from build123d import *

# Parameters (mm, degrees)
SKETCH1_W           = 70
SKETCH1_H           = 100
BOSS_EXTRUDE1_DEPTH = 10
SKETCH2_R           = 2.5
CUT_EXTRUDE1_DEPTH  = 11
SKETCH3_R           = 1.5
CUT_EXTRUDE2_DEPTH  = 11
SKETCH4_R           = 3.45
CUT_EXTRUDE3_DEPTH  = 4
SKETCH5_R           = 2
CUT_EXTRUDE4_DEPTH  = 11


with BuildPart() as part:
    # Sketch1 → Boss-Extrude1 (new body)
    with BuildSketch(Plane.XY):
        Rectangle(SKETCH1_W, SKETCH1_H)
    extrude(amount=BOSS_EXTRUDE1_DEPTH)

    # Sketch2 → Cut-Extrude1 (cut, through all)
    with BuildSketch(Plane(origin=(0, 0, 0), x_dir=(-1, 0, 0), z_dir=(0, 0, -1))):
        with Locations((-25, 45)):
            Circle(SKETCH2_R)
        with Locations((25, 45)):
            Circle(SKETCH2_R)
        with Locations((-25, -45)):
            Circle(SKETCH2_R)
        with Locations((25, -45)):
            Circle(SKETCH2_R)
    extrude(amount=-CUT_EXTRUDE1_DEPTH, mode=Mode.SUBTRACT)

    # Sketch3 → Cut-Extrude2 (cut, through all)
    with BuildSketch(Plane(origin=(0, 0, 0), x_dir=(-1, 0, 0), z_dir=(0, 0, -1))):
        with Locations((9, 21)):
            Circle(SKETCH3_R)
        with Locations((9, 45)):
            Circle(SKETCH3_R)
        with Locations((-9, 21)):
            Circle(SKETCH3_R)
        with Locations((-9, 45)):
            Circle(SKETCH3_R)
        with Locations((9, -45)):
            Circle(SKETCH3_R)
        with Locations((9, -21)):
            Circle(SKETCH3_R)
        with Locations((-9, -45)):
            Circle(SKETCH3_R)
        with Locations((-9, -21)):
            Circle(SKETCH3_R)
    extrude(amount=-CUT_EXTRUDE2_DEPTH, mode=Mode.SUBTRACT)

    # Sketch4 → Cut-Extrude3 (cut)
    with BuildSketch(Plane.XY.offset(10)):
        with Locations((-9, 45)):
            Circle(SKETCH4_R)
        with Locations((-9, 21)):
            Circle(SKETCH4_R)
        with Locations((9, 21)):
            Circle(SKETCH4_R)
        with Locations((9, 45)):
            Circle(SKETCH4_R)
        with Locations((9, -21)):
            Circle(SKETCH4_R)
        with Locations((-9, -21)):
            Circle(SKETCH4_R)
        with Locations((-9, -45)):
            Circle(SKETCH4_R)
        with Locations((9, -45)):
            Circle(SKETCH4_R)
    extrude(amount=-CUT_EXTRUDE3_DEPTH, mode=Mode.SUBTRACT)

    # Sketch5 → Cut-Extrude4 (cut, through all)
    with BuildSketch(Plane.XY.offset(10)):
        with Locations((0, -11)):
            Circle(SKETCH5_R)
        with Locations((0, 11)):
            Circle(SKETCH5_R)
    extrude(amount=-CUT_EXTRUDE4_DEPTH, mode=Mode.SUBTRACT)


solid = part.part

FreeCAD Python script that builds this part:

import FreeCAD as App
import Part
import Sketcher
Q = App.Units.Quantity

doc = App.newDocument("Part")
body = doc.addObject("PartDesign::Body", "Body")

# Sketch on XY plane
sketch1 = doc.addObject("Sketcher::SketchObject", "Sketch")
body.addObject(sketch1)
sketch1.AttachmentSupport = (doc.XY_Plane, [""])
sketch1.MapMode = "FlatFace"
sketch1.addGeometry(Part.LineSegment(App.Vector(-35, 50, 0), App.Vector(-35, -50, 0)), False)
sketch1.addGeometry(Part.LineSegment(App.Vector(-35, -50, 0), App.Vector(35, -50, 0)), False)
sketch1.addGeometry(Part.LineSegment(App.Vector(35, -50, 0), App.Vector(35, 50, 0)), False)
sketch1.addGeometry(Part.LineSegment(App.Vector(35, 50, 0), App.Vector(-35, 50, 0)), False)
sketch1.addConstraint(Sketcher.Constraint("Coincident", 0, 2, 1, 1))
sketch1.addConstraint(Sketcher.Constraint("Coincident", 1, 2, 2, 1))
sketch1.addConstraint(Sketcher.Constraint("Coincident", 2, 2, 3, 1))
sketch1.addConstraint(Sketcher.Constraint("Coincident", 3, 2, 0, 1))
sketch1.addConstraint(Sketcher.Constraint("Vertical", 0))
sketch1.addConstraint(Sketcher.Constraint("Horizontal", 1))
sketch1.addConstraint(Sketcher.Constraint("Vertical", 2))
sketch1.addConstraint(Sketcher.Constraint("Horizontal", 3))
sketch1.addConstraint(Sketcher.Constraint("Symmetric", 0, 2, 2, 2, -1, 1))
sketch1.addConstraint(Sketcher.Constraint("DistanceX", 1, 1, 1, 2, Q("70 mm")))
sketch1.addConstraint(Sketcher.Constraint("DistanceY", 0, 2, 0, 1, Q("100 mm")))
pad1 = doc.addObject("PartDesign::Pad", "Pad")
body.addObject(pad1)
pad1.Profile = sketch1
pad1.Length = 10

# Sketch on XY plane
sketch2 = doc.addObject("Sketcher::SketchObject", "Sketch001")
body.addObject(sketch2)
sketch2.AttachmentSupport = (doc.XY_Plane, [""])
sketch2.MapMode = "FlatFace"
sketch2.addGeometry(Part.Circle(App.Vector(25, 45, 0), App.Vector(0, 0, 1), 2.5), False)
sketch2.addGeometry(Part.Circle(App.Vector(-25, 45, 0), App.Vector(0, 0, 1), 2.5), False)
sketch2.addGeometry(Part.Circle(App.Vector(25, -45, 0), App.Vector(0, 0, 1), 2.5), False)
sketch2.addGeometry(Part.Circle(App.Vector(-25, -45, 0), App.Vector(0, 0, 1), 2.5), False)
sketch2.addConstraint(Sketcher.Constraint("Equal", 0, 1))
sketch2.addConstraint(Sketcher.Constraint("Equal", 1, 2))
sketch2.addConstraint(Sketcher.Constraint("Equal", 2, 3))
sketch2.addConstraint(Sketcher.Constraint("Symmetric", 1, 3, 2, 3, -1, 1))
sketch2.addConstraint(Sketcher.Constraint("Symmetric", 0, 3, 3, 3, -1, 1))
sketch2.addConstraint(Sketcher.Constraint("Symmetric", 0, 3, 1, 3, -2))
sketch2.addConstraint(Sketcher.Constraint("Diameter", 0, Q("5 mm")))
sketch2.addConstraint(Sketcher.Constraint("DistanceX", -1, 1, 0, 3, Q("25 mm")))
sketch2.addConstraint(Sketcher.Constraint("DistanceY", -1, 1, 0, 3, Q("45 mm")))
pocket1 = doc.addObject("PartDesign::Pocket", "Pocket")
body.addObject(pocket1)
pocket1.Profile = sketch2
pocket1.Type = "ThroughAll"
pocket1.Reversed = True

# Sketch on XY plane
sketch3 = doc.addObject("Sketcher::SketchObject", "Sketch002")
body.addObject(sketch3)
sketch3.AttachmentSupport = (doc.XY_Plane, [""])
sketch3.MapMode = "FlatFace"
sketch3.addGeometry(Part.Circle(App.Vector(-9, 21, 0), App.Vector(0, 0, 1), 1.5), False)
sketch3.addGeometry(Part.Circle(App.Vector(-9, 45, 0), App.Vector(0, 0, 1), 1.5), False)
sketch3.addGeometry(Part.Circle(App.Vector(9, 21, 0), App.Vector(0, 0, 1), 1.5), False)
sketch3.addGeometry(Part.Circle(App.Vector(9, 45, 0), App.Vector(0, 0, 1), 1.5), False)
sketch3.addGeometry(Part.Circle(App.Vector(-9, -45, 0), App.Vector(0, 0, 1), 1.5), False)
sketch3.addGeometry(Part.Circle(App.Vector(-9, -21, 0), App.Vector(0, 0, 1), 1.5), False)
sketch3.addGeometry(Part.Circle(App.Vector(9, -45, 0), App.Vector(0, 0, 1), 1.5), False)
sketch3.addGeometry(Part.Circle(App.Vector(9, -21, 0), App.Vector(0, 0, 1), 1.5), False)
sketch3.addConstraint(Sketcher.Constraint("Equal", 0, 1))
sketch3.addConstraint(Sketcher.Constraint("Equal", 1, 2))
sketch3.addConstraint(Sketcher.Constraint("Equal", 2, 3))
sketch3.addConstraint(Sketcher.Constraint("Equal", 3, 4))
sketch3.addConstraint(Sketcher.Constraint("Equal", 4, 5))
sketch3.addConstraint(Sketcher.Constraint("Equal", 5, 6))
sketch3.addConstraint(Sketcher.Constraint("Equal", 6, 7))
sketch3.addConstraint(Sketcher.Constraint("Symmetric", 3, 3, 4, 3, -1, 1))
sketch3.addConstraint(Sketcher.Constraint("Symmetric", 2, 3, 5, 3, -1, 1))
sketch3.addConstraint(Sketcher.Constraint("Symmetric", 1, 3, 6, 3, -1, 1))
sketch3.addConstraint(Sketcher.Constraint("Symmetric", 0, 3, 7, 3, -1, 1))
sketch3.addConstraint(Sketcher.Constraint("Symmetric", 0, 3, 2, 3, -2))
sketch3.addConstraint(Sketcher.Constraint("Symmetric", 1, 3, 3, 3, -2))
sketch3.addConstraint(Sketcher.Constraint("Vertical", 0, 3, 1, 3))
sketch3.addConstraint(Sketcher.Constraint("Diameter", 0, Q("3 mm")))
sketch3.addConstraint(Sketcher.Constraint("DistanceX", 0, 3, -1, 1, Q("9 mm")))
sketch3.addConstraint(Sketcher.Constraint("DistanceY", -1, 1, 0, 3, Q("21 mm")))
sketch3.addConstraint(Sketcher.Constraint("DistanceY", -1, 1, 1, 3, Q("45 mm")))
pocket2 = doc.addObject("PartDesign::Pocket", "Pocket001")
body.addObject(pocket2)
pocket2.Profile = sketch3
pocket2.Type = "ThroughAll"
pocket2.Reversed = True

# Sketch on XY plane
sketch4 = doc.addObject("Sketcher::SketchObject", "Sketch003")
body.addObject(sketch4)
sketch4.AttachmentSupport = (doc.XY_Plane, [""])
sketch4.MapMode = "FlatFace"
sketch4.AttachmentOffset = App.Placement(App.Vector(0, 0, 10), App.Rotation())
sketch4.addGeometry(Part.Circle(App.Vector(-9, 45, 0), App.Vector(0, 0, 1), 3.5), False)
sketch4.addGeometry(Part.Circle(App.Vector(-9, 21, 0), App.Vector(0, 0, 1), 3.5), False)
sketch4.addGeometry(Part.Circle(App.Vector(9, 21, 0), App.Vector(0, 0, 1), 3.5), False)
sketch4.addGeometry(Part.Circle(App.Vector(9, 45, 0), App.Vector(0, 0, 1), 3.5), False)
sketch4.addGeometry(Part.Circle(App.Vector(9, -21, 0), App.Vector(0, 0, 1), 3.5), False)
sketch4.addGeometry(Part.Circle(App.Vector(-9, -21, 0), App.Vector(0, 0, 1), 3.5), False)
sketch4.addGeometry(Part.Circle(App.Vector(-9, -45, 0), App.Vector(0, 0, 1), 3.5), False)
sketch4.addGeometry(Part.Circle(App.Vector(9, -45, 0), App.Vector(0, 0, 1), 3.5), False)
sketch4.addConstraint(Sketcher.Constraint("Equal", 0, 1))
sketch4.addConstraint(Sketcher.Constraint("Equal", 1, 2))
sketch4.addConstraint(Sketcher.Constraint("Equal", 2, 3))
sketch4.addConstraint(Sketcher.Constraint("Equal", 3, 4))
sketch4.addConstraint(Sketcher.Constraint("Equal", 4, 5))
sketch4.addConstraint(Sketcher.Constraint("Equal", 5, 6))
sketch4.addConstraint(Sketcher.Constraint("Equal", 6, 7))
sketch4.addConstraint(Sketcher.Constraint("Symmetric", 1, 3, 4, 3, -1, 1))
sketch4.addConstraint(Sketcher.Constraint("Symmetric", 2, 3, 5, 3, -1, 1))
sketch4.addConstraint(Sketcher.Constraint("Symmetric", 3, 3, 6, 3, -1, 1))
sketch4.addConstraint(Sketcher.Constraint("Symmetric", 0, 3, 7, 3, -1, 1))
sketch4.addConstraint(Sketcher.Constraint("Symmetric", 1, 3, 2, 3, -2))
sketch4.addConstraint(Sketcher.Constraint("Symmetric", 0, 3, 3, 3, -2))
sketch4.addConstraint(Sketcher.Constraint("Vertical", 0, 3, 1, 3))
sketch4.addConstraint(Sketcher.Constraint("Diameter", 0, Q("6.9 mm")))
sketch4.addConstraint(Sketcher.Constraint("DistanceX", 0, 3, -1, 1, Q("9 mm")))
sketch4.addConstraint(Sketcher.Constraint("DistanceY", -1, 1, 0, 3, Q("45 mm")))
sketch4.addConstraint(Sketcher.Constraint("DistanceY", -1, 1, 1, 3, Q("21 mm")))
pocket3 = doc.addObject("PartDesign::Pocket", "Pocket002")
body.addObject(pocket3)
pocket3.Profile = sketch4
pocket3.Length = 4

# Sketch on XY plane
sketch5 = doc.addObject("Sketcher::SketchObject", "Sketch004")
body.addObject(sketch5)
sketch5.AttachmentSupport = (doc.XY_Plane, [""])
sketch5.MapMode = "FlatFace"
sketch5.AttachmentOffset = App.Placement(App.Vector(0, 0, 10), App.Rotation())
sketch5.addGeometry(Part.Circle(App.Vector(0, -11, 0), App.Vector(0, 0, 1), 2), False)
sketch5.addGeometry(Part.Circle(App.Vector(0, 11, 0), App.Vector(0, 0, 1), 2), False)
sketch5.addConstraint(Sketcher.Constraint("Equal", 0, 1))
sketch5.addConstraint(Sketcher.Constraint("Symmetric", 0, 3, 1, 3, -1, 1))
sketch5.addConstraint(Sketcher.Constraint("PointOnObject", 0, 3, -2))
sketch5.addConstraint(Sketcher.Constraint("Diameter", 0, Q("4 mm")))
sketch5.addConstraint(Sketcher.Constraint("DistanceY", 0, 3, -1, 1, Q("11 mm")))
pocket4 = doc.addObject("PartDesign::Pocket", "Pocket003")
body.addObject(pocket4)
pocket4.Profile = sketch5
pocket4.Type = "ThroughAll"

doc.recompute()
